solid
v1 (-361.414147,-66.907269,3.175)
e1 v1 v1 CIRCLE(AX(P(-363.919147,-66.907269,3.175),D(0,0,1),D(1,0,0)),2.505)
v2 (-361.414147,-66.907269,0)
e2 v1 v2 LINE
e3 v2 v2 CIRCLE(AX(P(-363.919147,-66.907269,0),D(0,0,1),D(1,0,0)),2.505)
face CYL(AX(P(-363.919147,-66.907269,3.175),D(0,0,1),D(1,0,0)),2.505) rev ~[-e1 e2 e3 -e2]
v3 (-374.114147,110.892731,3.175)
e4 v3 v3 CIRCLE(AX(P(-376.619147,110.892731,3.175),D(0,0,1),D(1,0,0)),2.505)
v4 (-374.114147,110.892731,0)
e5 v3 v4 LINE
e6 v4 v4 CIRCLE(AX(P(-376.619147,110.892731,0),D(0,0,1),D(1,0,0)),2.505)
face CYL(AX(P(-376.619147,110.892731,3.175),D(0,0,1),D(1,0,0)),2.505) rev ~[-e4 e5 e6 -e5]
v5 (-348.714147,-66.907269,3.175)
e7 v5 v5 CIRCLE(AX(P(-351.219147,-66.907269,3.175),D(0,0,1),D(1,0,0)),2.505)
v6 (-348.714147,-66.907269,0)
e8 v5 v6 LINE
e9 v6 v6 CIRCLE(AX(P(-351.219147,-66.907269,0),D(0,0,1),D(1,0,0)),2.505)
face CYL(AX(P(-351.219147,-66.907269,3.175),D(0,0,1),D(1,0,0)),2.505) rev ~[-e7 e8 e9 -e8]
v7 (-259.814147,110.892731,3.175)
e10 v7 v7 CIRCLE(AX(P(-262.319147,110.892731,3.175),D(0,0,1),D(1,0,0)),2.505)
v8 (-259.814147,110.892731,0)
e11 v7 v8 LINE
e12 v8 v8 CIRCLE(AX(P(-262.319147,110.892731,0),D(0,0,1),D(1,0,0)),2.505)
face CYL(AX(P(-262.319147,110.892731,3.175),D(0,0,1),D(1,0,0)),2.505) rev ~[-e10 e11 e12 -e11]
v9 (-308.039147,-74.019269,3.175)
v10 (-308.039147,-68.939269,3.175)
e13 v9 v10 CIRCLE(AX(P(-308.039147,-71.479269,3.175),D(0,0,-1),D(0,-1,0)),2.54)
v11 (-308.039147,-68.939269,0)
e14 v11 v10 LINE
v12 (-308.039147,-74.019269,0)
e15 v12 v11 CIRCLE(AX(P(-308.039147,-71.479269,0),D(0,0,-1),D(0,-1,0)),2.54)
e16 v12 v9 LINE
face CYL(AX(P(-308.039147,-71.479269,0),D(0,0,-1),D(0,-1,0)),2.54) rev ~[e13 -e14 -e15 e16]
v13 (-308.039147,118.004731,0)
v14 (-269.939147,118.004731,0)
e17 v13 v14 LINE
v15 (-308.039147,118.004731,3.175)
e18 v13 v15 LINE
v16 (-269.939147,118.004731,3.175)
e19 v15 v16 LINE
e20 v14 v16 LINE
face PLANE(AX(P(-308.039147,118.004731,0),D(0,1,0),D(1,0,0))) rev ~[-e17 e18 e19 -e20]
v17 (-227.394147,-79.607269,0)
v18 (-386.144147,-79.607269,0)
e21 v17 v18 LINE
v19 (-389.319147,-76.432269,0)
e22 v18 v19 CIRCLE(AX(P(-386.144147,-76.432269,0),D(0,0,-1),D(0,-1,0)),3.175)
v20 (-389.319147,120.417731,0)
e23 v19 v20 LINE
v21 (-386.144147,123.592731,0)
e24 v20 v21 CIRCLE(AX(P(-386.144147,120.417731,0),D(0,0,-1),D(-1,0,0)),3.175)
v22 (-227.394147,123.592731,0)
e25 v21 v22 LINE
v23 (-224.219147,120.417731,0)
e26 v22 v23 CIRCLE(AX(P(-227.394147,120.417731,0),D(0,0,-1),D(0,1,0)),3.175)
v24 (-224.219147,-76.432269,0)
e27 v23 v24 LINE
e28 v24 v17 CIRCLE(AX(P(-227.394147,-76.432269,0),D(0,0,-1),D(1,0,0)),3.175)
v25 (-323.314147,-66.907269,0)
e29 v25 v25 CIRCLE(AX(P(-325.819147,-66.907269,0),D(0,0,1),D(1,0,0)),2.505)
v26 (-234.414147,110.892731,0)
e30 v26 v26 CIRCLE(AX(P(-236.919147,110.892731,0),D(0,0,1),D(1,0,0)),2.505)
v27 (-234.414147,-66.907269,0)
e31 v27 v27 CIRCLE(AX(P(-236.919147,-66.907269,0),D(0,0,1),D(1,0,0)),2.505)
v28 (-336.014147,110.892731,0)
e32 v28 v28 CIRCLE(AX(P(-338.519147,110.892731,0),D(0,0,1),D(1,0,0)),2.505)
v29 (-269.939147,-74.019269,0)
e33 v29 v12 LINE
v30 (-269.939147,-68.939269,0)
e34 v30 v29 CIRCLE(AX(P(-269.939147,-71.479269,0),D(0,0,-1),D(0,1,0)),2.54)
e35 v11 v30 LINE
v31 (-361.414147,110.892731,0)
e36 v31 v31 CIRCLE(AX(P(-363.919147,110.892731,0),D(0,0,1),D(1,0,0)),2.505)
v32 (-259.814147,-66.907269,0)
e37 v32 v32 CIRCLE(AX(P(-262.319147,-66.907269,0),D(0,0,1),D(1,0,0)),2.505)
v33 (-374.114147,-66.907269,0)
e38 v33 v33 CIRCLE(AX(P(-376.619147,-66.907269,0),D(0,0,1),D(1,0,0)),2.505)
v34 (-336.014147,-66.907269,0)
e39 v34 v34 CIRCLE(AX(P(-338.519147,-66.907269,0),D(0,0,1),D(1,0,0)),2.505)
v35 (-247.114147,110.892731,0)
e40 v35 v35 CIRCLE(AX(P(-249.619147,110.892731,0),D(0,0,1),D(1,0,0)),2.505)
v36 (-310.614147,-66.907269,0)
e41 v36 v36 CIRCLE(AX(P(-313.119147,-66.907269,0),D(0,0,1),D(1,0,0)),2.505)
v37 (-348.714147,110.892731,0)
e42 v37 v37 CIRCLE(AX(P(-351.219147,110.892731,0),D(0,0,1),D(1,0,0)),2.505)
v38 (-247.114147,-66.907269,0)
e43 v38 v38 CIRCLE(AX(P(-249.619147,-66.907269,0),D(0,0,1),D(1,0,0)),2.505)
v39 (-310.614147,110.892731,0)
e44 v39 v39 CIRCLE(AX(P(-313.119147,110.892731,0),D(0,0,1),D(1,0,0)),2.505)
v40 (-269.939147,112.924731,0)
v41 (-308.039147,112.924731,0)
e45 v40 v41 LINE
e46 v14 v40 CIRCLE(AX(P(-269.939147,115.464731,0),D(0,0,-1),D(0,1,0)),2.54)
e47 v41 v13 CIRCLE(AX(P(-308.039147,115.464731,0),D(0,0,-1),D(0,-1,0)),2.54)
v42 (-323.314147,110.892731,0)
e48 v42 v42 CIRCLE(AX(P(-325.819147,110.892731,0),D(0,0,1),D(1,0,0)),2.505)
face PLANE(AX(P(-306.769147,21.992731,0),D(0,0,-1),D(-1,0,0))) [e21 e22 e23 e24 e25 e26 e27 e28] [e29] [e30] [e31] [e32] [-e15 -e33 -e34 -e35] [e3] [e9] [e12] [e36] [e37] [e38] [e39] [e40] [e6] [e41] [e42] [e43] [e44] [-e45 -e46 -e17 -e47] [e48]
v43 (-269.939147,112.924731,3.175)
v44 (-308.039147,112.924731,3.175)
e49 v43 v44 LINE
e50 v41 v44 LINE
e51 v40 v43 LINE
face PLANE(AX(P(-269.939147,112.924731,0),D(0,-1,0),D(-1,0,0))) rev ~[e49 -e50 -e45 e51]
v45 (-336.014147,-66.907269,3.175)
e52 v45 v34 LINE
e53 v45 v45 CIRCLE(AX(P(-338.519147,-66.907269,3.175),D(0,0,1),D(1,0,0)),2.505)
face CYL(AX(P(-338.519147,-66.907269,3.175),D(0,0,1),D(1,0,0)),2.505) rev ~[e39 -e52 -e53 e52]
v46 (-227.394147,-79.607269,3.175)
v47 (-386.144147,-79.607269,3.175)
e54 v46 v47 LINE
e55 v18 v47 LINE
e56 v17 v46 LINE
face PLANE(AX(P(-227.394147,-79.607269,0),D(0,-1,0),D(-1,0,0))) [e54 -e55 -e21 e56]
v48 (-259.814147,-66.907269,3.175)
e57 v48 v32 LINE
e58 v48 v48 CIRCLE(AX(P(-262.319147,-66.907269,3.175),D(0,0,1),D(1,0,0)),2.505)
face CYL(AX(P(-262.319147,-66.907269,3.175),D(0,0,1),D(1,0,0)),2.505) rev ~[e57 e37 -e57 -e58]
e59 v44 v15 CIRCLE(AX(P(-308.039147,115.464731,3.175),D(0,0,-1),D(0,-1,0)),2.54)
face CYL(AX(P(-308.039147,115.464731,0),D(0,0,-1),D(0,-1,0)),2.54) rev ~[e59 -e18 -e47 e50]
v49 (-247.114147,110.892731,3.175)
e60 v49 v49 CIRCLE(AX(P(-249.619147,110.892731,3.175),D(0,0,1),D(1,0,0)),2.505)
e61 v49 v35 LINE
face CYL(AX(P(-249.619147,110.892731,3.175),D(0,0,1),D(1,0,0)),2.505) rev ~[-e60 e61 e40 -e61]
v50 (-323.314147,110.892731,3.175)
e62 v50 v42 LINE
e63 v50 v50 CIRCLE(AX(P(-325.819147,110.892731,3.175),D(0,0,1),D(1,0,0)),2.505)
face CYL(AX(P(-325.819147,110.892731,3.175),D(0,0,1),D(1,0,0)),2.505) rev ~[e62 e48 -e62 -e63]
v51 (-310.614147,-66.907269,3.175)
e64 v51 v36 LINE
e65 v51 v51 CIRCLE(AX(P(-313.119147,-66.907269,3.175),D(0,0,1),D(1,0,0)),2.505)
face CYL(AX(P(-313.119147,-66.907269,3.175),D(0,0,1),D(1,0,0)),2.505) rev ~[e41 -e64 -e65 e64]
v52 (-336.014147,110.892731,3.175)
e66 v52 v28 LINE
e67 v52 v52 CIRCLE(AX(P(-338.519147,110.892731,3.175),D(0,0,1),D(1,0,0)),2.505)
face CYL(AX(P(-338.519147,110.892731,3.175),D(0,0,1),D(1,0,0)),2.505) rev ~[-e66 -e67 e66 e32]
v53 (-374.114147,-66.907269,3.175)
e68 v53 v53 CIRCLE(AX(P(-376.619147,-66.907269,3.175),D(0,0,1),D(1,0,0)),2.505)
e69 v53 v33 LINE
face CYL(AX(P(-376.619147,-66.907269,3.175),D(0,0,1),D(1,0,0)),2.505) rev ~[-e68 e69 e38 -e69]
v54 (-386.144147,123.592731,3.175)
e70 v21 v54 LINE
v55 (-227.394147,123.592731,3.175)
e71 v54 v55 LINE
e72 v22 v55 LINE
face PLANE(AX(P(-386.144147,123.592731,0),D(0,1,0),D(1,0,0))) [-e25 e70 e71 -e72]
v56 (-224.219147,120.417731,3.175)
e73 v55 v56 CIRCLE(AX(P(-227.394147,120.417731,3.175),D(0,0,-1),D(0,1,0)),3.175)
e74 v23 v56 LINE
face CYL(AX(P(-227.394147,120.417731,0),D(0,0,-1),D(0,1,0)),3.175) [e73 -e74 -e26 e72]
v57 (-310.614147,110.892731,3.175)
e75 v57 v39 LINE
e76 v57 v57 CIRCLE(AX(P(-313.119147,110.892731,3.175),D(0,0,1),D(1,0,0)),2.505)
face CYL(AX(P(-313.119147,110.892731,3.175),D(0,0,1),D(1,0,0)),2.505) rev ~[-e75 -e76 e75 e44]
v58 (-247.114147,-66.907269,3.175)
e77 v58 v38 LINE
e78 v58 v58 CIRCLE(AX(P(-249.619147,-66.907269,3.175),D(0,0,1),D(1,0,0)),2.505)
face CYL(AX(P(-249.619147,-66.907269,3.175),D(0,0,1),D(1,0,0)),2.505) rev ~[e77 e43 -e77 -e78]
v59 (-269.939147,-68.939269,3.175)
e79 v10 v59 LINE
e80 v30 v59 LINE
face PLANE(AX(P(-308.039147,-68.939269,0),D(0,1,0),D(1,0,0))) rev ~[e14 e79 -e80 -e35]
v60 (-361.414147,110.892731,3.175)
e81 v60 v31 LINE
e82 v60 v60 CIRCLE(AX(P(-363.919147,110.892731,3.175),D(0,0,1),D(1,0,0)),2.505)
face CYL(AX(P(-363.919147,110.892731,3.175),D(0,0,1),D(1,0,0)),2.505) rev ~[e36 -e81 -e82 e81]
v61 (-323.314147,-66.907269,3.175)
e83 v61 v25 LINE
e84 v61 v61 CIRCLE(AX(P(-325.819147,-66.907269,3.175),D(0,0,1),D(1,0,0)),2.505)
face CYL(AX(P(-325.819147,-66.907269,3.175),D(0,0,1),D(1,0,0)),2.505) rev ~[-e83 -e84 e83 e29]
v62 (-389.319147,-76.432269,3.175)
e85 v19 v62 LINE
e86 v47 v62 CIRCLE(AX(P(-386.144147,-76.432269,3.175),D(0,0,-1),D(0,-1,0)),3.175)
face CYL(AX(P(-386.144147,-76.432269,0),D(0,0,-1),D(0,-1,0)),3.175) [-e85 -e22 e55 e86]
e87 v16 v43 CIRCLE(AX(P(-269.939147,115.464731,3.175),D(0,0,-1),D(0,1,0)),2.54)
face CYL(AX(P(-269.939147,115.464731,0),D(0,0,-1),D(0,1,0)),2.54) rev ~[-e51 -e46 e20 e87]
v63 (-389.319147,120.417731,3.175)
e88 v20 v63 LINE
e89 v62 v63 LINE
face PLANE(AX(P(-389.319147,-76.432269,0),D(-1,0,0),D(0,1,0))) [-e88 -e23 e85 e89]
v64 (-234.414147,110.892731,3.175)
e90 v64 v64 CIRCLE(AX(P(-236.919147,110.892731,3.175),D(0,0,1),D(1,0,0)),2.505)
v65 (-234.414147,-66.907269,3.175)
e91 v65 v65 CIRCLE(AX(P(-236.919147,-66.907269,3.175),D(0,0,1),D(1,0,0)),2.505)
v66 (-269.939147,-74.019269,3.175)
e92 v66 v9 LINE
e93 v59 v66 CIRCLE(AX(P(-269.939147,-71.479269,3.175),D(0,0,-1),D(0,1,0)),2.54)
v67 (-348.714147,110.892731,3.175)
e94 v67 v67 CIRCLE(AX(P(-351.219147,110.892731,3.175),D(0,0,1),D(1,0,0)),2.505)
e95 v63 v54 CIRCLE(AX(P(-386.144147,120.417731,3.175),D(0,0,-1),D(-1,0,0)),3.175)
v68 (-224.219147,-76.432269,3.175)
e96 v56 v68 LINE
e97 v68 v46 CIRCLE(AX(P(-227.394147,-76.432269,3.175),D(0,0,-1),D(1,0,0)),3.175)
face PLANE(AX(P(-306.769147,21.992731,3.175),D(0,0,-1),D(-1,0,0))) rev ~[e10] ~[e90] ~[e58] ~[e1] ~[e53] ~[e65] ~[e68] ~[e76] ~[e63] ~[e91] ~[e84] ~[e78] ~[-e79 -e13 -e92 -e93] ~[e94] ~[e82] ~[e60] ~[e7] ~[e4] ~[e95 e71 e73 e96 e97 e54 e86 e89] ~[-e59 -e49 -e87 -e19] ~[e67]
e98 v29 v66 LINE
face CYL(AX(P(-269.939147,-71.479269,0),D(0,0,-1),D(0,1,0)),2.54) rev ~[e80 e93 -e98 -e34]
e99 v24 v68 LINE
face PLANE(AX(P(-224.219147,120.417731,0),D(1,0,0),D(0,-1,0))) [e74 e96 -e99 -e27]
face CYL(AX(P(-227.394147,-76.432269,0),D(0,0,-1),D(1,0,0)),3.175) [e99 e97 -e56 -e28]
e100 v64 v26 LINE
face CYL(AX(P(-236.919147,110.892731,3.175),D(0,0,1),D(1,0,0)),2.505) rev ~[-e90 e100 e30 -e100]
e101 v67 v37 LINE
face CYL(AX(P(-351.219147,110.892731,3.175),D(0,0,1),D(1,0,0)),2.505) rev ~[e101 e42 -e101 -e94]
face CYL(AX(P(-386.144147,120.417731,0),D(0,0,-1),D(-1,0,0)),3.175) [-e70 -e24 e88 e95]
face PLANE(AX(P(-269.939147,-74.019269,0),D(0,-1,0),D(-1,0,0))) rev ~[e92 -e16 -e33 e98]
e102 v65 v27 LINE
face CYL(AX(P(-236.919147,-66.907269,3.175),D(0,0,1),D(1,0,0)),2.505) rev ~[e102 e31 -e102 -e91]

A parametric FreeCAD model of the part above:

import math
import FreeCAD as App
import Part
import Sketcher
Q = App.Units.Quantity

doc = App.newDocument("Part")
body = doc.addObject("PartDesign::Body", "Body")

# Sketch on XY plane
sketch1 = body.newObject("Sketcher::SketchObject", "Sketch")
sketch1.AttachmentSupport = (doc.getObject("XY_Plane"), [""])
sketch1.MapMode = "FlatFace"
sketch1.addGeometry(Part.LineSegment(App.Vector(-386.1, -79.6, 0), App.Vector(-227.4, -79.6, 0)), False)
sketch1.addGeometry(Part.ArcOfCircle(Part.Circle(App.Vector(-227.4, -76.4, 0), App.Vector(0, 0, 1), 3.2), math.radians(-90), math.radians(0)), False)
sketch1.addGeometry(Part.LineSegment(App.Vector(-224.2, -76.4, 0), App.Vector(-224.2, 120.4, 0)), False)
sketch1.addGeometry(Part.ArcOfCircle(Part.Circle(App.Vector(-227.4, 120.4, 0), App.Vector(0, 0, 1), 3.2), math.radians(0), math.radians(90)), False)
sketch1.addGeometry(Part.LineSegment(App.Vector(-227.4, 123.6, 0), App.Vector(-386.1, 123.6, 0)), False)
sketch1.addGeometry(Part.ArcOfCircle(Part.Circle(App.Vector(-386.1, 120.4, 0), App.Vector(0, 0, 1), 3.2), math.radians(90), math.radians(180)), False)
sketch1.addGeometry(Part.LineSegment(App.Vector(-389.3, 120.4, 0), App.Vector(-389.3, -76.4, 0)), False)
sketch1.addGeometry(Part.ArcOfCircle(Part.Circle(App.Vector(-386.1, -76.4, 0), App.Vector(0, 0, 1), 3.2), math.radians(-180), math.radians(-90)), False)
sketch1.addGeometry(Part.LineSegment(App.Vector(-308, -68.9, 0), App.Vector(-269.9, -68.9, 0)), False)
sketch1.addGeometry(Part.ArcOfCircle(Part.Circle(App.Vector(-269.9, -71.5, 0), App.Vector(0, 0, 1), 2.5), math.radians(-90), math.radians(90)), False)
sketch1.addGeometry(Part.LineSegment(App.Vector(-269.9, -74, 0), App.Vector(-308, -74, 0)), False)
sketch1.addGeometry(Part.ArcOfCircle(Part.Circle(App.Vector(-308, -71.5, 0), App.Vector(0, 0, 1), 2.5), math.radians(90), math.radians(270)), False)
sketch1.addGeometry(Part.LineSegment(App.Vector(-308, 118, 0), App.Vector(-269.9, 118, 0)), False)
sketch1.addGeometry(Part.ArcOfCircle(Part.Circle(App.Vector(-269.9, 115.5, 0), App.Vector(0, 0, 1), 2.5), math.radians(-90), math.radians(90)), False)
sketch1.addGeometry(Part.LineSegment(App.Vector(-269.9, 112.9, 0), App.Vector(-308, 112.9, 0)), False)
sketch1.addGeometry(Part.ArcOfCircle(Part.Circle(App.Vector(-308, 115.5, 0), App.Vector(0, 0, 1), 2.5), math.radians(90), math.radians(270)), False)
sketch1.addConstraint(Sketcher.Constraint("Tangent", 0, 2, 1, 1))
sketch1.addConstraint(Sketcher.Constraint("Tangent", 1, 2, 2, 1))
sketch1.addConstraint(Sketcher.Constraint("Tangent", 2, 2, 3, 1))
sketch1.addConstraint(Sketcher.Constraint("Tangent", 3, 2, 4, 1))
sketch1.addConstraint(Sketcher.Constraint("Tangent", 4, 2, 5, 1))
sketch1.addConstraint(Sketcher.Constraint("Tangent", 5, 2, 6, 1))
sketch1.addConstraint(Sketcher.Constraint("Tangent", 6, 2, 7, 1))
sketch1.addConstraint(Sketcher.Constraint("Tangent", 7, 2, 0, 1))
sketch1.addConstraint(Sketcher.Constraint("Tangent", 8, 2, 9, 2))
sketch1.addConstraint(Sketcher.Constraint("Tangent", 9, 1, 10, 1))
sketch1.addConstraint(Sketcher.Constraint("Tangent", 10, 2, 11, 2))
sketch1.addConstraint(Sketcher.Constraint("Tangent", 11, 1, 8, 1))
sketch1.addConstraint(Sketcher.Constraint("Tangent", 12, 2, 13, 2))
sketch1.addConstraint(Sketcher.Constraint("Tangent", 13, 1, 14, 1))
sketch1.addConstraint(Sketcher.Constraint("Tangent", 14, 2, 15, 2))
sketch1.addConstraint(Sketcher.Constraint("Tangent", 15, 1, 12, 1))
sketch1.addConstraint(Sketcher.Constraint("Horizontal", 0))
sketch1.addConstraint(Sketcher.Constraint("Vertical", 2))
sketch1.addConstraint(Sketcher.Constraint("Horizontal", 4))
sketch1.addConstraint(Sketcher.Constraint("Vertical", 6))
sketch1.addConstraint(Sketcher.Constraint("Horizontal", 8))
sketch1.addConstraint(Sketcher.Constraint("Horizontal", 10))
sketch1.addConstraint(Sketcher.Constraint("Horizontal", 12))
sketch1.addConstraint(Sketcher.Constraint("Horizontal", 14))
sketch1.addConstraint(Sketcher.Constraint("Equal", 1, 3))
sketch1.addConstraint(Sketcher.Constraint("Equal", 3, 5))
sketch1.addConstraint(Sketcher.Constraint("Equal", 5, 7))
sketch1.addConstraint(Sketcher.Constraint("Equal", 11, 13))
sketch1.addConstraint(Sketcher.Constraint("Vertical", 9, 3, 13, 3))
sketch1.addConstraint(Sketcher.Constraint("Vertical", 11, 3, 15, 3))
sketch1.addConstraint(Sketcher.Constraint("Radius", 9, Q("0.1 in")))
sketch1.addConstraint(Sketcher.Constraint("DistanceX", 8, 1, 8, 2, Q("1.5 in")))
sketch1.addConstraint(Sketcher.Constraint("Radius", 1, Q("0.125 in")))
sketch1.addConstraint(Sketcher.Constraint("DistanceX", 0, 1, 0, 2, Q("6.25 in")))
sketch1.addConstraint(Sketcher.Constraint("DistanceY", 2, 1, 2, 2, Q("7.75 in")))
sketch1.addConstraint(Sketcher.Constraint("DistanceX", 9, 3, 1, 2, Q("1.8 in")))
sketch1.addConstraint(Sketcher.Constraint("DistanceY", 9, 3, 13, 3, Q("7.36 in")))
sketch1.addConstraint(Sketcher.Constraint("DistanceY", 0, 2, 9, 3, Q("0.32 in")))
sketch1.addConstraint(Sketcher.Constraint("DistanceY", 1, 3, -1, 1, 76.432269))
sketch1.addConstraint(Sketcher.Constraint("DistanceX", 1, 3, -1, 1, 227.394147))
pad1 = body.newObject("PartDesign::Pad", "Pad")
pad1.Profile = sketch1
pad1.Length = Q("0.125 in")

# Sketch on XY plane
sketch2 = body.newObject("Sketcher::SketchObject", "Sketch001")
sketch2.AttachmentSupport = (doc.getObject("XY_Plane"), [""])
sketch2.MapMode = "FlatFace"
sketch2.AttachmentOffset = App.Placement(App.Vector(0, 0, 0.125 * 25.4), App.Rotation())
sketch2.addGeometry(Part.Circle(App.Vector(-376.6, 110.9, 0), App.Vector(0, 0, 1), 2.5), False)
sketch2.addGeometry(Part.Circle(App.Vector(-376.6, -66.9, 0), App.Vector(0, 0, 1), 2.5), False)
sketch2.addGeometry(Part.Circle(App.Vector(-363.9, 110.9, 0), App.Vector(0, 0, 1), 2.5), False)
sketch2.addGeometry(Part.Circle(App.Vector(-363.9, -66.9, 0), App.Vector(0, 0, 1), 2.5), False)
sketch2.addGeometry(Part.Circle(App.Vector(-351.2, 110.9, 0), App.Vector(0, 0, 1), 2.5), False)
sketch2.addGeometry(Part.Circle(App.Vector(-351.2, -66.9, 0), App.Vector(0, 0, 1), 2.5), False)
sketch2.addGeometry(Part.Circle(App.Vector(-338.5, 110.9, 0), App.Vector(0, 0, 1), 2.5), False)
sketch2.addGeometry(Part.Circle(App.Vector(-338.5, -66.9, 0), App.Vector(0, 0, 1), 2.5), False)
sketch2.addGeometry(Part.Circle(App.Vector(-325.8, 110.9, 0), App.Vector(0, 0, 1), 2.5), False)
sketch2.addGeometry(Part.Circle(App.Vector(-325.8, -66.9, 0), App.Vector(0, 0, 1), 2.5), False)
sketch2.addGeometry(Part.Circle(App.Vector(-313.1, 110.9, 0), App.Vector(0, 0, 1), 2.5), False)
sketch2.addGeometry(Part.Circle(App.Vector(-313.1, -66.9, 0), App.Vector(0, 0, 1), 2.5), False)
sketch2.addGeometry(Part.Circle(App.Vector(-236.9, 110.9, 0), App.Vector(0, 0, 1), 2.5), False)
sketch2.addGeometry(Part.Circle(App.Vector(-236.9, -66.9, 0), App.Vector(0, 0, 1), 2.5), False)
sketch2.addGeometry(Part.Circle(App.Vector(-249.6, -66.9, 0), App.Vector(0, 0, 1), 2.5), False)
sketch2.addGeometry(Part.Circle(App.Vector(-249.6, 110.9, 0), App.Vector(0, 0, 1), 2.5), False)
sketch2.addGeometry(Part.Circle(App.Vector(-262.3, -66.9, 0), App.Vector(0, 0, 1), 2.5), False)
sketch2.addGeometry(Part.Circle(App.Vector(-262.3, 110.9, 0), App.Vector(0, 0, 1), 2.5), False)
sketch2.addConstraint(Sketcher.Constraint("Equal", 0, 1))
sketch2.addConstraint(Sketcher.Constraint("Equal", 1, 2))
sketch2.addConstraint(Sketcher.Constraint("Equal", 2, 3))
sketch2.addConstraint(Sketcher.Constraint("Equal", 3, 4))
sketch2.addConstraint(Sketcher.Constraint("Equal", 4, 5))
sketch2.addConstraint(Sketcher.Constraint("Equal", 5, 6))
sketch2.addConstraint(Sketcher.Constraint("Equal", 6, 7))
sketch2.addConstraint(Sketcher.Constraint("Equal", 7, 8))
sketch2.addConstraint(Sketcher.Constraint("Equal", 8, 9))
sketch2.addConstraint(Sketcher.Constraint("Equal", 9, 10))
sketch2.addConstraint(Sketcher.Constraint("Equal", 10, 11))
sketch2.addConstraint(Sketcher.Constraint("Equal", 11, 12))
sketch2.addConstraint(Sketcher.Constraint("Equal", 12, 13))
sketch2.addConstraint(Sketcher.Constraint("Equal", 13, 14))
sketch2.addConstraint(Sketcher.Constraint("Equal", 14, 15))
sketch2.addConstraint(Sketcher.Constraint("Equal", 15, 16))
sketch2.addConstraint(Sketcher.Constraint("Equal", 16, 17))
sketch2.addConstraint(Sketcher.Constraint("Horizontal", 0, 3, 2, 3))
sketch2.addConstraint(Sketcher.Constraint("Horizontal", 1, 3, 3, 3))
sketch2.addConstraint(Sketcher.Constraint("Horizontal", 2, 3, 4, 3))
sketch2.addConstraint(Sketcher.Constraint("Horizontal", 3, 3, 5, 3))
sketch2.addConstraint(Sketcher.Constraint("Horizontal", 4, 3, 6, 3))
sketch2.addConstraint(Sketcher.Constraint("Horizontal", 5, 3, 7, 3))
sketch2.addConstraint(Sketcher.Constraint("Horizontal", 6, 3, 8, 3))
sketch2.addConstraint(Sketcher.Constraint("Horizontal", 7, 3, 9, 3))
sketch2.addConstraint(Sketcher.Constraint("Horizontal", 8, 3, 10, 3))
sketch2.addConstraint(Sketcher.Constraint("Horizontal", 9, 3, 11, 3))
sketch2.addConstraint(Sketcher.Constraint("Horizontal", 10, 3, 12, 3))
sketch2.addConstraint(Sketcher.Constraint("Horizontal", 11, 3, 13, 3))
sketch2.addConstraint(Sketcher.Constraint("Horizontal", 13, 3, 14, 3))
sketch2.addConstraint(Sketcher.Constraint("Horizontal", 12, 3, 15, 3))
sketch2.addConstraint(Sketcher.Constraint("Horizontal", 14, 3, 16, 3))
sketch2.addConstraint(Sketcher.Constraint("Horizontal", 15, 3, 17, 3))
sketch2.addConstraint(Sketcher.Constraint("Vertical", 0, 3, 1, 3))
sketch2.addConstraint(Sketcher.Constraint("Vertical", 2, 3, 3, 3))
sketch2.addConstraint(Sketcher.Constraint("Vertical", 4, 3, 5, 3))
sketch2.addConstraint(Sketcher.Constraint("Vertical", 6, 3, 7, 3))
sketch2.addConstraint(Sketcher.Constraint("Vertical", 8, 3, 9, 3))
sketch2.addConstraint(Sketcher.Constraint("Vertical", 10, 3, 11, 3))
sketch2.addConstraint(Sketcher.Constraint("Vertical", 12, 3, 13, 3))
sketch2.addConstraint(Sketcher.Constraint("Vertical", 14, 3, 15, 3))
sketch2.addConstraint(Sketcher.Constraint("Vertical", 16, 3, 17, 3))
sketch2.addConstraint(Sketcher.Constraint("DistanceY", 1, 3, 0, 3, Q("7 in")))
sketch2.addConstraint(Sketcher.Constraint("DistanceX", 0, 3, 4, 3, Q("1 in")))
sketch2.addConstraint(Sketcher.Constraint("DistanceX", 2, 3, 6, 3, Q("1 in")))
sketch2.addConstraint(Sketcher.Constraint("DistanceX", 4, 3, 8, 3, Q("1 in")))
sketch2.addConstraint(Sketcher.Constraint("DistanceX", 6, 3, 10, 3, Q("1 in")))
sketch2.addConstraint(Sketcher.Constraint("DistanceX", 10, 3, 12, 3, Q("3 in")))
sketch2.addConstraint(Sketcher.Constraint("DistanceX", 9, 3, 14, 3, Q("3 in")))
sketch2.addConstraint(Sketcher.Constraint("DistanceX", 16, 3, 13, 3, Q("1 in")))
sketch2.addConstraint(Sketcher.Constraint("DistanceX", 0, 3, 2, 3, Q("0.5 in")))
sketch2.addConstraint(Sketcher.Constraint("Diameter", 0, 5.01))
sketch2.addConstraint(Sketcher.Constraint("DistanceY", -1, 1, 0, 3, 110.892731))
sketch2.addConstraint(Sketcher.Constraint("DistanceX", 0, 3, -1, 1, 376.619147))
pocket1 = body.newObject("PartDesign::Pocket", "Pocket")
pocket1.Profile = sketch2
pocket1.Type = "ThroughAll"

doc.recompute()
